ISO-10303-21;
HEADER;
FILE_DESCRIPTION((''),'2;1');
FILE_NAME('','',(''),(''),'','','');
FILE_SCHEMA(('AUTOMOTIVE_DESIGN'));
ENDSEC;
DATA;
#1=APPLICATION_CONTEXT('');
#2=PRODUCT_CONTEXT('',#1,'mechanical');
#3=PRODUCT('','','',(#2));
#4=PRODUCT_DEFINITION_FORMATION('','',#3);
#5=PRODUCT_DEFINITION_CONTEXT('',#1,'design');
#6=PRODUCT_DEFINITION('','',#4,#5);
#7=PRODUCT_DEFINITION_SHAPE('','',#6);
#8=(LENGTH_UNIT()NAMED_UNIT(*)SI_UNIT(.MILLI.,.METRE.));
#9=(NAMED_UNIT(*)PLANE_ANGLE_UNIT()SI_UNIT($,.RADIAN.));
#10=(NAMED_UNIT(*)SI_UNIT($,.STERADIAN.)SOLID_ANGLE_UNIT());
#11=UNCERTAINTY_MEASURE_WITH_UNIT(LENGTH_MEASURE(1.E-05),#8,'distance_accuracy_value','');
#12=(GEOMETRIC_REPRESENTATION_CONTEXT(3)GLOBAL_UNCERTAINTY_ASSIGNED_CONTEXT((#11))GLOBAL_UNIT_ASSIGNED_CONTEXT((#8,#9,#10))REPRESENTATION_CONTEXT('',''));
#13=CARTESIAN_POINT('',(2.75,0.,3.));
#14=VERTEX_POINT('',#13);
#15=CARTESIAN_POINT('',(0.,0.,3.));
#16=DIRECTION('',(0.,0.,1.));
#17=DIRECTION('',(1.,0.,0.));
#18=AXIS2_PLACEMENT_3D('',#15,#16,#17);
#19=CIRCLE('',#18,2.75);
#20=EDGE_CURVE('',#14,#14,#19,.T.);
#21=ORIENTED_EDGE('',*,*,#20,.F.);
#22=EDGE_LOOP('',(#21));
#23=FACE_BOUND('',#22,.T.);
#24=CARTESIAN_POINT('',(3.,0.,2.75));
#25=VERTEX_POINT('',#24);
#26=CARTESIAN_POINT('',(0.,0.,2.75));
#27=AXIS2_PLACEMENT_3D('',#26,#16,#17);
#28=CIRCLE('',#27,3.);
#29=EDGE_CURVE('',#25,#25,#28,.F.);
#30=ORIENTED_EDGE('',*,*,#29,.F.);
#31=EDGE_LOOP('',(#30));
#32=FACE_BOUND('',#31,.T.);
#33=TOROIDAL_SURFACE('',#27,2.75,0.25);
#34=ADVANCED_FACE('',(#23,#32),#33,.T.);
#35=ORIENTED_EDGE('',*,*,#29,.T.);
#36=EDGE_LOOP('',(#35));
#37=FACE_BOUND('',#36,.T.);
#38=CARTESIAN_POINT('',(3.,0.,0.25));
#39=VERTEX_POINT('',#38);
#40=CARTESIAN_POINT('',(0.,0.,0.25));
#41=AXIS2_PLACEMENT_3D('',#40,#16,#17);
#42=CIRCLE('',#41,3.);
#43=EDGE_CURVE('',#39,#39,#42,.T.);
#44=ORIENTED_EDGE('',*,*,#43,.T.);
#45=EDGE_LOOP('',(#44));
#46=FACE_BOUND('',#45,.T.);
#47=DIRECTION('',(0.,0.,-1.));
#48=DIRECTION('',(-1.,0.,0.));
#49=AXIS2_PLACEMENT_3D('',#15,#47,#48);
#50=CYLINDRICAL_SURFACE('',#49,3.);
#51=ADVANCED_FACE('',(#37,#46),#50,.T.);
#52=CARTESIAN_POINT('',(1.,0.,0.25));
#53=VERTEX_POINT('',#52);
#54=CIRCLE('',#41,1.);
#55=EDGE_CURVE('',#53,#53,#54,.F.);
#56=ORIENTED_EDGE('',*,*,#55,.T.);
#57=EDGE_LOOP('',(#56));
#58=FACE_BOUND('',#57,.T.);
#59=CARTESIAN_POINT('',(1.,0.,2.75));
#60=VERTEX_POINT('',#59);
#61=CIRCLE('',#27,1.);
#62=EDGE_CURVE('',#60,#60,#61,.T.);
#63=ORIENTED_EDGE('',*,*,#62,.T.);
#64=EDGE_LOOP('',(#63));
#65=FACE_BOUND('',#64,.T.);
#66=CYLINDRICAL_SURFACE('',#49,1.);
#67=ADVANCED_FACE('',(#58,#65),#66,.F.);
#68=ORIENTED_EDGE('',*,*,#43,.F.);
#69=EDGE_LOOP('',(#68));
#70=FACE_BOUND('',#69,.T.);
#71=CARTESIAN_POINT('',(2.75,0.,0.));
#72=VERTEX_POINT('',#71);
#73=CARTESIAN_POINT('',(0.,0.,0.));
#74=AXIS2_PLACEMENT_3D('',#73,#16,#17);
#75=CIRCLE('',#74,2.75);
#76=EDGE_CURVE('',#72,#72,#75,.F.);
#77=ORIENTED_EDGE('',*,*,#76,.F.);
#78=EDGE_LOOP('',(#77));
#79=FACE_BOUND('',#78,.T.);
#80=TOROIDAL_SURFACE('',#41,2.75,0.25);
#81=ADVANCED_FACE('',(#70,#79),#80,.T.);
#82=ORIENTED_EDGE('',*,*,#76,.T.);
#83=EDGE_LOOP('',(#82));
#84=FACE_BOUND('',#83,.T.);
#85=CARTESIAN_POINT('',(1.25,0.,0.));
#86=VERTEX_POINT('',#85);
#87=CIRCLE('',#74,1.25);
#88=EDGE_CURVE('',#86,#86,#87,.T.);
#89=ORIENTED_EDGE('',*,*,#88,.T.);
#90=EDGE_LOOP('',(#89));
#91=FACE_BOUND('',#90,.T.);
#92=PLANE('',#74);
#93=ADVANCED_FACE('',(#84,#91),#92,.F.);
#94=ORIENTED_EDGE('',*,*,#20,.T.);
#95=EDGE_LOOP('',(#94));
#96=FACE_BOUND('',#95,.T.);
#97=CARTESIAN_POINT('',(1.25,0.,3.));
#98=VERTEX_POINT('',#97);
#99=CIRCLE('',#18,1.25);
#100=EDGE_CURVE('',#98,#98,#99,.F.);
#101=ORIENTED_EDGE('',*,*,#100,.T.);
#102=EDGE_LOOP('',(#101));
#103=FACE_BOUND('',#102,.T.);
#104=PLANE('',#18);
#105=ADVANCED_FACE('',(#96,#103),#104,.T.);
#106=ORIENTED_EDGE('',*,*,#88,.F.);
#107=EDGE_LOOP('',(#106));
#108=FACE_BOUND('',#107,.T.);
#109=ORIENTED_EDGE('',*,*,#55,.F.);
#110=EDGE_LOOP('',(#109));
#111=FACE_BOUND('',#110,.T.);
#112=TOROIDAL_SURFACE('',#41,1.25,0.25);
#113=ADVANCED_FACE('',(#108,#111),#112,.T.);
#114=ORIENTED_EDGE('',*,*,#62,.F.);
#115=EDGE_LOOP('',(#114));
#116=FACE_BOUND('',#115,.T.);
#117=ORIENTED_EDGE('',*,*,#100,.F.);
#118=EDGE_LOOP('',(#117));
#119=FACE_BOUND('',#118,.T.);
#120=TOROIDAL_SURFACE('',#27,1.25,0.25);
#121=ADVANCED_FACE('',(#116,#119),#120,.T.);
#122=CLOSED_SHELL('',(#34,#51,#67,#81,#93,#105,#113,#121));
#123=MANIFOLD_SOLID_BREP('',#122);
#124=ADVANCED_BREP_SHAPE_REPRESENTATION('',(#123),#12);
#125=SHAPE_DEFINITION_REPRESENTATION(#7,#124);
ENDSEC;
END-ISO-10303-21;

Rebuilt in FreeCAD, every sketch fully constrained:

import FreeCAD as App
import Part
import Sketcher
Q = App.Units.Quantity


def edges_at(feature, points):
    """Names of the edges that pass closest to the given points."""
    edges = feature.Shape.Edges
    near = lambda p: min(range(len(edges)), key=lambda i: edges[i].distToShape(Part.Vertex(*p))[0])
    return sorted({f"Edge{near(p) + 1}" for p in points})

doc = App.newDocument("Part")
body = doc.addObject("PartDesign::Body", "Body")

sketch1 = body.newObject("Sketcher::SketchObject", "Sketch")
sketch1.AttachmentSupport = (doc.getObject("XY_Plane"), [""])
sketch1.MapMode = "FlatFace"
sketch1.addGeometry(Part.Circle(App.Vector(0, 0, 0), App.Vector(0, 0, 1), 3), False)
sketch1.addGeometry(Part.Circle(App.Vector(0, 0, 0), App.Vector(0, 0, 1), 1), False)
sketch1.addConstraint(Sketcher.Constraint("Coincident", 0, 3, -1, 1))
sketch1.addConstraint(Sketcher.Constraint("Coincident", 1, 3, -1, 1))
sketch1.addConstraint(Sketcher.Constraint("Diameter", 0, Q("6 mm")))
sketch1.addConstraint(Sketcher.Constraint("Diameter", 1, Q("2 mm")))
pad1 = body.newObject("PartDesign::Pad", "Pad")
pad1.Profile = sketch1
pad1.Length = 3
doc.recompute()

fillet = body.newObject("PartDesign::Fillet", "Fillet")
fillet.Base = (pad1, edges_at(pad1, [
    (-3, 0, 0),
    (-1, 0, 0),
    (-3, 0, 3),
    (-1, 0, 3),
]))
fillet.Radius = 0.25

doc.recompute()
